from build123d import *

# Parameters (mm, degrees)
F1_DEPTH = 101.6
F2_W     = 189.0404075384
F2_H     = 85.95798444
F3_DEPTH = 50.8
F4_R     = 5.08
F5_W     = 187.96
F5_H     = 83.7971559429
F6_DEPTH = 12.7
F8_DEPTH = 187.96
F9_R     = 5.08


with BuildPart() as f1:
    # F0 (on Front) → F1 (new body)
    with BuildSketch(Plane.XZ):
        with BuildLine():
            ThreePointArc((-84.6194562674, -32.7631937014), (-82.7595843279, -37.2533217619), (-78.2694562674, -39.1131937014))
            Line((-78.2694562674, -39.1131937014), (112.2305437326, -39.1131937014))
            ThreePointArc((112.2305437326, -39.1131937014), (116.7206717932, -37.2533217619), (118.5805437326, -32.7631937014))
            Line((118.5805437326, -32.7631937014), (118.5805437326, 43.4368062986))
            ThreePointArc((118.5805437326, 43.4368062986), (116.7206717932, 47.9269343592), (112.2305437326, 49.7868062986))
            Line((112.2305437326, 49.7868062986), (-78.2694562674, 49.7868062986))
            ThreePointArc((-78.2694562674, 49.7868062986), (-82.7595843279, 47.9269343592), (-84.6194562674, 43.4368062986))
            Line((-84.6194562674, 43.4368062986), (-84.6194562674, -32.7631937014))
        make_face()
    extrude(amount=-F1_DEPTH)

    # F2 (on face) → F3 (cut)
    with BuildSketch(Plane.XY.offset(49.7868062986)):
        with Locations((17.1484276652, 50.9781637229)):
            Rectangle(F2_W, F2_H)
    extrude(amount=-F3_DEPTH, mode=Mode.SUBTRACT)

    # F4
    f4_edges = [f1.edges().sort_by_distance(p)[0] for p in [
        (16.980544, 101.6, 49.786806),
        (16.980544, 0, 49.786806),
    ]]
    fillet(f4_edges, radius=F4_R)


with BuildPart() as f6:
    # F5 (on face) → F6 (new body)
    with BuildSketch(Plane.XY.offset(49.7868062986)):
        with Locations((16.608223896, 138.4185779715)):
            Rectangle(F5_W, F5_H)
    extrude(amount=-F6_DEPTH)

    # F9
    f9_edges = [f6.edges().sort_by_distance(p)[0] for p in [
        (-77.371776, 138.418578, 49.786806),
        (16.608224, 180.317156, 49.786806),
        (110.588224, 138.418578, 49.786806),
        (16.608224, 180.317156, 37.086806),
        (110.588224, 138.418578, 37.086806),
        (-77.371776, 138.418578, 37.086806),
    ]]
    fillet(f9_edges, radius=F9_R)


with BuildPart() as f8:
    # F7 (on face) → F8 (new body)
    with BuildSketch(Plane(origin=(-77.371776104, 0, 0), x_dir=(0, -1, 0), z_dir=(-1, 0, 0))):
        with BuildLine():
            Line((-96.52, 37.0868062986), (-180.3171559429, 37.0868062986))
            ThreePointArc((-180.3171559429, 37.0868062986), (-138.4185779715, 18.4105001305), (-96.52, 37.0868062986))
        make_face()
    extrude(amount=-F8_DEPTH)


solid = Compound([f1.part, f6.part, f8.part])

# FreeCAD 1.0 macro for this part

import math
import FreeCAD as App
import Part
import Sketcher
from FreeCAD import Vector
Q = App.Units.Quantity


def edges_at(feature, points):
    """Names of the edges that pass closest to the given points."""
    edges = feature.Shape.Edges
    near = lambda p: min(range(len(edges)), key=lambda i: edges[i].distToShape(Part.Vertex(*p))[0])
    return sorted({f"Edge{near(p) + 1}" for p in points})


def add_polygon(sketch, points):
    """Adds a closed chain of lines whose ends are joined by coincident constraints."""
    first, n = sketch.GeometryCount, len(points)
    for a, b in zip(points, points[1:] + points[:1]):
        sketch.addGeometry(Part.LineSegment(App.Vector(*a, 0), App.Vector(*b, 0)), False)
    for i in range(n):
        sketch.addConstraint(Sketcher.Constraint("Coincident", first + i, 2, first + (i + 1) % n, 1))

doc = App.newDocument("Part")
body = doc.addObject("PartDesign::Body", "Body")

# Sketch on XZ plane
sketch1 = body.newObject("Sketcher::SketchObject", "Sketch")
sketch1.AttachmentSupport = (doc.getObject("XZ_Plane"), [""])
sketch1.MapMode = "FlatFace"
sketch1.addGeometry(Part.ArcOfCircle(Part.Circle(Vector(-78, -33, 0), Vector(0, 0, 1), 6), math.radians(180), math.radians(270)), False)
sketch1.addGeometry(Part.LineSegment(Vector(-78, -39, 0), Vector(112, -39, 0)), False)
sketch1.addGeometry(Part.ArcOfCircle(Part.Circle(Vector(112, -33, 0), Vector(0, 0, 1), 6), math.radians(-90), math.radians(0)), False)
sketch1.addGeometry(Part.LineSegment(Vector(119, -33, 0), Vector(119, 43, 0)), False)
sketch1.addGeometry(Part.ArcOfCircle(Part.Circle(Vector(112, 43, 0), Vector(0, 0, 1), 6), math.radians(0), math.radians(90)), False)
sketch1.addGeometry(Part.LineSegment(Vector(112, 50, 0), Vector(-78, 50, 0)), False)
sketch1.addGeometry(Part.ArcOfCircle(Part.Circle(Vector(-78, 43, 0), Vector(0, 0, 1), 6), math.radians(90), math.radians(180)), False)
sketch1.addGeometry(Part.LineSegment(Vector(-85, 43, 0), Vector(-85, -33, 0)), False)
sketch1.addConstraint(Sketcher.Constraint("Tangent", 0, 2, 1, 1))
sketch1.addConstraint(Sketcher.Constraint("Tangent", 1, 2, 2, 1))
sketch1.addConstraint(Sketcher.Constraint("Tangent", 2, 2, 3, 1))
sketch1.addConstraint(Sketcher.Constraint("Tangent", 3, 2, 4, 1))
sketch1.addConstraint(Sketcher.Constraint("Tangent", 4, 2, 5, 1))
sketch1.addConstraint(Sketcher.Constraint("Tangent", 5, 2, 6, 1))
sketch1.addConstraint(Sketcher.Constraint("Tangent", 6, 2, 7, 1))
sketch1.addConstraint(Sketcher.Constraint("Tangent", 7, 2, 0, 1))
sketch1.addConstraint(Sketcher.Constraint("Horizontal", 1))
sketch1.addConstraint(Sketcher.Constraint("Vertical", 3))
sketch1.addConstraint(Sketcher.Constraint("Horizontal", 5))
sketch1.addConstraint(Sketcher.Constraint("Vertical", 7))
sketch1.addConstraint(Sketcher.Constraint("Equal", 0, 2))
sketch1.addConstraint(Sketcher.Constraint("Equal", 2, 4))
sketch1.addConstraint(Sketcher.Constraint("Equal", 4, 6))
sketch1.addConstraint(Sketcher.Constraint("DistanceY", 3, 1, 3, 2, Q("3 in")))
sketch1.addConstraint(Sketcher.Constraint("Radius", 0, Q("0.25 in")))
sketch1.addConstraint(Sketcher.Constraint("DistanceX", 1, 1, 1, 2, Q("7.5 in")))
sketch1.addConstraint(Sketcher.Constraint("DistanceX", 0, 3, -1, 1, Q("78.269456 mm")))
sketch1.addConstraint(Sketcher.Constraint("DistanceY", 0, 3, -1, 1, Q("32.763194 mm")))
pad1 = body.newObject("PartDesign::Pad", "Pad")
pad1.Profile = sketch1
pad1.Length = Q("4 in")
pad1.Reversed = True

# Sketch on XY plane
sketch2 = body.newObject("Sketcher::SketchObject", "Sketch001")
sketch2.AttachmentSupport = (doc.getObject("XY_Plane"), [""])
sketch2.MapMode = "FlatFace"
sketch2.AttachmentOffset = App.Placement(Vector(0, 0, 49.786806), App.Rotation())
add_polygon(sketch2, [(-77, 94), (-77, 8), (112, 8), (112, 94)])  # lines 0-3
sketch2.addConstraint(Sketcher.Constraint("Vertical", 0))
sketch2.addConstraint(Sketcher.Constraint("Horizontal", 1))
sketch2.addConstraint(Sketcher.Constraint("Vertical", 2))
sketch2.addConstraint(Sketcher.Constraint("Horizontal", 3))
sketch2.addConstraint(Sketcher.Constraint("DistanceX", 1, 1, 1, 2, Q("189.040408 mm")))
sketch2.addConstraint(Sketcher.Constraint("DistanceY", 0, 2, 0, 1, Q("85.957984 mm")))
sketch2.addConstraint(Sketcher.Constraint("DistanceY", -1, 1, 0, 2, Q("7.999172 mm")))
sketch2.addConstraint(Sketcher.Constraint("DistanceX", -1, 1, 1, 2, Q("111.668631 mm")))
pocket1 = body.newObject("PartDesign::Pocket", "Pocket")
pocket1.Profile = sketch2
pocket1.Length = Q("2 in")
doc.recompute()

fillet = body.newObject("PartDesign::Fillet", "Fillet")
fillet.Base = (pocket1, edges_at(pocket1, [(16.981, 101.6, 49.787), (16.981, 0, 49.787)]))
fillet.Radius = Q("0.2 in")
body2 = doc.addObject("PartDesign::Body", "Body001")

# Sketch on XY plane
sketch3 = body2.newObject("Sketcher::SketchObject", "Sketch002")
sketch3.AttachmentSupport = (doc.getObject("XY_Plane001"), [""])
sketch3.MapMode = "FlatFace"
sketch3.AttachmentOffset = App.Placement(Vector(0, 0, 49.786806), App.Rotation())
add_polygon(sketch3, [(-77, 180), (-77, 97), (111, 97), (111, 180)])  # lines 0-3
sketch3.addConstraint(Sketcher.Constraint("Vertical", 0))
sketch3.addConstraint(Sketcher.Constraint("Horizontal", 1))
sketch3.addConstraint(Sketcher.Constraint("Vertical", 2))
sketch3.addConstraint(Sketcher.Constraint("Horizontal", 3))
sketch3.addConstraint(Sketcher.Constraint("DistanceX", 1, 1, 1, 2, Q("7.4 in")))
sketch3.addConstraint(Sketcher.Constraint("DistanceY", -1, 1, 0, 2, Q("3.8 in")))
sketch3.addConstraint(Sketcher.Constraint("DistanceY", 0, 2, 0, 1, Q("83.797156 mm")))
sketch3.addConstraint(Sketcher.Constraint("DistanceX", 0, 2, -1, 1, Q("77.371776 mm")))
pad2 = body2.newObject("PartDesign::Pad", "Pad001")
pad2.Profile = sketch3
pad2.Length = Q("0.5 in")
pad2.Reversed = True
doc.recompute()

fillet2 = body2.newObject("PartDesign::Fillet", "Fillet001")
fillet2.Base = (pad2, edges_at(pad2, [
    (-77.372, 138.419, 49.787),
    (16.608, 180.317, 49.787),
    (110.588, 138.419, 49.787),
    (16.608, 180.317, 37.087),
    (110.588, 138.419, 37.087),
    (-77.372, 138.419, 37.087),
]))
fillet2.Radius = Q("0.2 in")
body3 = doc.addObject("PartDesign::Body", "Body002")

# Sketch on YZ plane
sketch4 = body3.newObject("Sketcher::SketchObject", "Sketch003")
sketch4.AttachmentSupport = (doc.getObject("YZ_Plane002"), [""])
sketch4.MapMode = "FlatFace"
sketch4.AttachmentOffset = App.Placement(Vector(0, 0, -77.371776), App.Rotation())
sketch4.addGeometry(Part.LineSegment(Vector(97, 37, 0), Vector(180, 37, 0)), False)
sketch4.addGeometry(Part.ArcOfCircle(Part.Circle(Vector(138, 75, 0), Vector(0, 0, 1), 56), math.radians(-138), math.radians(-42)), False)
sketch4.addConstraint(Sketcher.Constraint("Coincident", 0, 1, 1, 1))
sketch4.addConstraint(Sketcher.Constraint("Coincident", 1, 2, 0, 2))
sketch4.addConstraint(Sketcher.Constraint("Horizontal", 0))
sketch4.addConstraint(Sketcher.Constraint("DistanceX", -1, 1, 0, 1, Q("3.8 in")))
sketch4.addConstraint(Sketcher.Constraint("Radius", 1, Q("56.335959 mm")))
sketch4.addConstraint(Sketcher.Constraint("DistanceX", 0, 1, 0, 2, Q("83.797156 mm")))
sketch4.addConstraint(Sketcher.Constraint("DistanceY", -1, 1, 1, 3, Q("74.746459 mm")))
pad3 = body3.newObject("PartDesign::Pad", "Pad002")
pad3.Profile = sketch4
pad3.Length = Q("7.4 in")

doc.recompute()
